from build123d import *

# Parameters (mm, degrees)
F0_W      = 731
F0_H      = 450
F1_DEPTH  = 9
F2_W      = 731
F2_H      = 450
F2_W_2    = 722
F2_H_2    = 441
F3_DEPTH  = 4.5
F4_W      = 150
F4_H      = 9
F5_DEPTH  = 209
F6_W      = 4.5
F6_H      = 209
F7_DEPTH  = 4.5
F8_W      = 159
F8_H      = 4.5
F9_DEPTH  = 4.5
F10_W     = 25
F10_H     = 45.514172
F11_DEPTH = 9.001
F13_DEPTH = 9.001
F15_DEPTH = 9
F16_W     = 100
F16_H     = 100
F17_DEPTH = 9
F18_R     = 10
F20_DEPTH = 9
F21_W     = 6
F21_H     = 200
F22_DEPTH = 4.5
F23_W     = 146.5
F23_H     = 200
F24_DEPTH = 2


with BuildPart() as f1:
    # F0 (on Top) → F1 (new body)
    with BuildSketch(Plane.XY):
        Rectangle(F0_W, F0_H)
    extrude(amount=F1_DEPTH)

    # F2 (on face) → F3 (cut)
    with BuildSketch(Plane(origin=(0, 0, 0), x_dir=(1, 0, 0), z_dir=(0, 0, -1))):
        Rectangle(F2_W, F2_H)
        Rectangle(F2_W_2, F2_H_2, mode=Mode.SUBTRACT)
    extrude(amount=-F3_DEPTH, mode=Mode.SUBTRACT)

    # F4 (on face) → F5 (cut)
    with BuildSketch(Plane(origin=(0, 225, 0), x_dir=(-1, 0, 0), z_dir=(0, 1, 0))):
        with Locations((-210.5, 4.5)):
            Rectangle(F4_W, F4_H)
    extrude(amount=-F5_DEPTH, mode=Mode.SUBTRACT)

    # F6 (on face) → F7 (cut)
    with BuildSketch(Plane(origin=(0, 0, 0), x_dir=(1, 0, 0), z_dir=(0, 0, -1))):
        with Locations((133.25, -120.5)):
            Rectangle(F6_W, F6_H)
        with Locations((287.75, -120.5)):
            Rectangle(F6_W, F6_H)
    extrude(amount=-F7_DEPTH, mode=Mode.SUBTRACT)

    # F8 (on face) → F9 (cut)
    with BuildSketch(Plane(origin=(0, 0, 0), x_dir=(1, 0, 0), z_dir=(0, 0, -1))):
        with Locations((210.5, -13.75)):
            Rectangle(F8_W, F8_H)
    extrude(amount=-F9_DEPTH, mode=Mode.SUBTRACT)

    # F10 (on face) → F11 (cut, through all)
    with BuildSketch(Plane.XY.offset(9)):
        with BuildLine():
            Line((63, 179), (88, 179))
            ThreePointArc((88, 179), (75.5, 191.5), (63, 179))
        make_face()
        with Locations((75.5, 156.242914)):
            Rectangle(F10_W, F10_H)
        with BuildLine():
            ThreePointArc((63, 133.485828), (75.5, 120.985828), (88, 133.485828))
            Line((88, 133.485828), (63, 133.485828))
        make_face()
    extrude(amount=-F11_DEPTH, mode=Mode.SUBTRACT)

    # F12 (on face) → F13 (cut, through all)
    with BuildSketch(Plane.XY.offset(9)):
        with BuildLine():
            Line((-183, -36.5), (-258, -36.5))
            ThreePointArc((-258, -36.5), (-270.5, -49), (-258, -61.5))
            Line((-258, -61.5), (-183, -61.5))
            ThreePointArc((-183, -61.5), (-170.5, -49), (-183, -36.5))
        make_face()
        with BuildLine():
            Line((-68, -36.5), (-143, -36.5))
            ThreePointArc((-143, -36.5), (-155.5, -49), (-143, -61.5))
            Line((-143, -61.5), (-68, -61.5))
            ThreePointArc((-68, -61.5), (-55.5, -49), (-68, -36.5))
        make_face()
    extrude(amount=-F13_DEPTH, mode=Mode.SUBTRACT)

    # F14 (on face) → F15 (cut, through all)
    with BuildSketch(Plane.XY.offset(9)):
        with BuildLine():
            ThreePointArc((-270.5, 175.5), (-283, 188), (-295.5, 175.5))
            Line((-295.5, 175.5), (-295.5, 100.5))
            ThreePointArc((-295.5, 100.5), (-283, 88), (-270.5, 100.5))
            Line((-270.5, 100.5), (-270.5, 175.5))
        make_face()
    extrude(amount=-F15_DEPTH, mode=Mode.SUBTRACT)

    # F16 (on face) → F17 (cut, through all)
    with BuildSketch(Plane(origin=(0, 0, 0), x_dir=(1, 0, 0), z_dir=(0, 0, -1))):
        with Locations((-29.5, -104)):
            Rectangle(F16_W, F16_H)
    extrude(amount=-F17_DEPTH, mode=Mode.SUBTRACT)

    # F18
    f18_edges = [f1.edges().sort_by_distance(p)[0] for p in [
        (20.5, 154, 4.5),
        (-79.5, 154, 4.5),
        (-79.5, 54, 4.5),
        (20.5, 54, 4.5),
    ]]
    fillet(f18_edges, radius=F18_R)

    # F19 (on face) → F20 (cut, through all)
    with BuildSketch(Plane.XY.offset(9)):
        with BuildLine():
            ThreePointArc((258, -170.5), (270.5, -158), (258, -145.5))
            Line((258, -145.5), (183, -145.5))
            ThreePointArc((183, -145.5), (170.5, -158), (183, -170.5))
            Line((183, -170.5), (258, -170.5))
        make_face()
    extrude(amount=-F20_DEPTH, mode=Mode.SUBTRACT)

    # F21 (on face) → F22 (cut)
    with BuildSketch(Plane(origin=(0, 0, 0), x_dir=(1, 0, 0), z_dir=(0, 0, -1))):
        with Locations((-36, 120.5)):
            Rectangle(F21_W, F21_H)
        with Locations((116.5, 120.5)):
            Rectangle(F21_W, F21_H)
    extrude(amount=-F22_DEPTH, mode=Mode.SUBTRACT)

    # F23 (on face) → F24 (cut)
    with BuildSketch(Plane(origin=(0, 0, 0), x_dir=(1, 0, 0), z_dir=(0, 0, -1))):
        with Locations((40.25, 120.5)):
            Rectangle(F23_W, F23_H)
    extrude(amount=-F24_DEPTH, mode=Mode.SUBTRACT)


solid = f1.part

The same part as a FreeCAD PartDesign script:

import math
import FreeCAD as App
import Part
import Sketcher
from FreeCAD import Vector
Q = App.Units.Quantity


def edges_at(feature, points):
    """Names of the edges that pass closest to the given points."""
    edges = feature.Shape.Edges
    near = lambda p: min(range(len(edges)), key=lambda i: edges[i].distToShape(Part.Vertex(*p))[0])
    return sorted({f"Edge{near(p) + 1}" for p in points})

doc = App.newDocument("Part")
body = doc.addObject("PartDesign::Body", "Body")

# Sketch on XY plane
sketch1 = body.newObject("Sketcher::SketchObject", "Sketch")
sketch1.AttachmentSupport = (doc.getObject("XY_Plane"), [""])
sketch1.MapMode = "FlatFace"
sketch1.addGeometry(Part.LineSegment(Vector(-366, 225, 0), Vector(-366, -225, 0)), False)
sketch1.addGeometry(Part.LineSegment(Vector(-366, -225, 0), Vector(366, -225, 0)), False)
sketch1.addGeometry(Part.LineSegment(Vector(366, -225, 0), Vector(366, 225, 0)), False)
sketch1.addGeometry(Part.LineSegment(Vector(366, 225, 0), Vector(-366, 225, 0)), False)
sketch1.addConstraint(Sketcher.Constraint("Coincident", 0, 2, 1, 1))
sketch1.addConstraint(Sketcher.Constraint("Coincident", 1, 2, 2, 1))
sketch1.addConstraint(Sketcher.Constraint("Coincident", 2, 2, 3, 1))
sketch1.addConstraint(Sketcher.Constraint("Coincident", 3, 2, 0, 1))
sketch1.addConstraint(Sketcher.Constraint("Vertical", 0))
sketch1.addConstraint(Sketcher.Constraint("Horizontal", 1))
sketch1.addConstraint(Sketcher.Constraint("Vertical", 2))
sketch1.addConstraint(Sketcher.Constraint("Horizontal", 3))
sketch1.addConstraint(Sketcher.Constraint("Symmetric", 0, 2, 2, 2, -1, 1))
sketch1.addConstraint(Sketcher.Constraint("DistanceX", 1, 1, 1, 2, Q("731 mm")))
sketch1.addConstraint(Sketcher.Constraint("DistanceY", 0, 2, 0, 1, Q("450 mm")))
pad1 = body.newObject("PartDesign::Pad", "Pad")
pad1.Profile = sketch1
pad1.Length = 9

# Sketch on XY plane
sketch2 = body.newObject("Sketcher::SketchObject", "Sketch001")
sketch2.AttachmentSupport = (doc.getObject("XY_Plane"), [""])
sketch2.MapMode = "FlatFace"
sketch2.addGeometry(Part.LineSegment(Vector(-366, -225, 0), Vector(-366, 225, 0)), False)
sketch2.addGeometry(Part.LineSegment(Vector(-366, 225, 0), Vector(366, 225, 0)), False)
sketch2.addGeometry(Part.LineSegment(Vector(366, 225, 0), Vector(366, -225, 0)), False)
sketch2.addGeometry(Part.LineSegment(Vector(366, -225, 0), Vector(-366, -225, 0)), False)
sketch2.addGeometry(Part.LineSegment(Vector(361, 220, 0), Vector(-361, 220, 0)), False)
sketch2.addGeometry(Part.LineSegment(Vector(-361, 220, 0), Vector(-361, -220, 0)), False)
sketch2.addGeometry(Part.LineSegment(Vector(-361, -220, 0), Vector(361, -220, 0)), False)
sketch2.addGeometry(Part.LineSegment(Vector(361, -220, 0), Vector(361, 220, 0)), False)
sketch2.addConstraint(Sketcher.Constraint("Coincident", 0, 2, 1, 1))
sketch2.addConstraint(Sketcher.Constraint("Coincident", 1, 2, 2, 1))
sketch2.addConstraint(Sketcher.Constraint("Coincident", 2, 2, 3, 1))
sketch2.addConstraint(Sketcher.Constraint("Coincident", 3, 2, 0, 1))
sketch2.addConstraint(Sketcher.Constraint("Coincident", 4, 2, 5, 1))
sketch2.addConstraint(Sketcher.Constraint("Coincident", 5, 2, 6, 1))
sketch2.addConstraint(Sketcher.Constraint("Coincident", 6, 2, 7, 1))
sketch2.addConstraint(Sketcher.Constraint("Coincident", 7, 2, 4, 1))
sketch2.addConstraint(Sketcher.Constraint("Vertical", 0))
sketch2.addConstraint(Sketcher.Constraint("Horizontal", 1))
sketch2.addConstraint(Sketcher.Constraint("Vertical", 2))
sketch2.addConstraint(Sketcher.Constraint("Horizontal", 3))
sketch2.addConstraint(Sketcher.Constraint("Horizontal", 4))
sketch2.addConstraint(Sketcher.Constraint("Vertical", 5))
sketch2.addConstraint(Sketcher.Constraint("Horizontal", 6))
sketch2.addConstraint(Sketcher.Constraint("Vertical", 7))
sketch2.addConstraint(Sketcher.Constraint("Symmetric", 0, 2, 2, 2, -1, 1))
sketch2.addConstraint(Sketcher.Constraint("Symmetric", 4, 2, 6, 2, -1, 1))
sketch2.addConstraint(Sketcher.Constraint("DistanceX", 1, 1, 1, 2, Q("731 mm")))
sketch2.addConstraint(Sketcher.Constraint("DistanceX", 4, 2, 4, 1, Q("722 mm")))
sketch2.addConstraint(Sketcher.Constraint("DistanceY", 0, 1, 0, 2, Q("450 mm")))
sketch2.addConstraint(Sketcher.Constraint("DistanceY", 5, 2, 5, 1, Q("441 mm")))
pocket1 = body.newObject("PartDesign::Pocket", "Pocket")
pocket1.Profile = sketch2
pocket1.Length = 4.5
pocket1.Reversed = True

# Sketch on XZ plane
sketch3 = body.newObject("Sketcher::SketchObject", "Sketch002")
sketch3.AttachmentSupport = (doc.getObject("XZ_Plane"), [""])
sketch3.MapMode = "FlatFace"
sketch3.AttachmentOffset = App.Placement(Vector(0, 0, -225), App.Rotation())
sketch3.addGeometry(Part.LineSegment(Vector(286, 9, 0), Vector(286, 0, 0)), False)
sketch3.addGeometry(Part.LineSegment(Vector(286, 0, 0), Vector(136, 0, 0)), False)
sketch3.addGeometry(Part.LineSegment(Vector(136, 0, 0), Vector(136, 9, 0)), False)
sketch3.addGeometry(Part.LineSegment(Vector(136, 9, 0), Vector(286, 9, 0)), False)
sketch3.addConstraint(Sketcher.Constraint("Coincident", 0, 2, 1, 1))
sketch3.addConstraint(Sketcher.Constraint("Coincident", 1, 2, 2, 1))
sketch3.addConstraint(Sketcher.Constraint("Coincident", 2, 2, 3, 1))
sketch3.addConstraint(Sketcher.Constraint("Coincident", 3, 2, 0, 1))
sketch3.addConstraint(Sketcher.Constraint("Vertical", 0))
sketch3.addConstraint(Sketcher.Constraint("Horizontal", 1))
sketch3.addConstraint(Sketcher.Constraint("Vertical", 2))
sketch3.addConstraint(Sketcher.Constraint("Horizontal", 3))
sketch3.addConstraint(Sketcher.Constraint("PointOnObject", 0, 2, -1))
sketch3.addConstraint(Sketcher.Constraint("DistanceX", 1, 2, 1, 1, Q("150 mm")))
sketch3.addConstraint(Sketcher.Constraint("DistanceY", 0, 2, 0, 1, Q("9 mm")))
sketch3.addConstraint(Sketcher.Constraint("DistanceX", -1, 1, 0, 2, Q("285.5 mm")))
pocket2 = body.newObject("PartDesign::Pocket", "Pocket001")
pocket2.Profile = sketch3
pocket2.Length = 209
pocket2.Reversed = True

# Sketch on XY plane
sketch4 = body.newObject("Sketcher::SketchObject", "Sketch003")
sketch4.AttachmentSupport = (doc.getObject("XY_Plane"), [""])
sketch4.MapMode = "FlatFace"
sketch4.addGeometry(Part.LineSegment(Vector(131, 16, 0), Vector(131, 225, 0)), False)
sketch4.addGeometry(Part.LineSegment(Vector(131, 225, 0), Vector(135.5, 225, 0)), False)
sketch4.addGeometry(Part.LineSegment(Vector(135.5, 225, 0), Vector(135.5, 16, 0)), False)
sketch4.addGeometry(Part.LineSegment(Vector(135.5, 16, 0), Vector(131, 16, 0)), False)
sketch4.addGeometry(Part.LineSegment(Vector(285.5, 16, 0), Vector(285.5, 225, 0)), False)
sketch4.addGeometry(Part.LineSegment(Vector(285.5, 225, 0), Vector(290, 225, 0)), False)
sketch4.addGeometry(Part.LineSegment(Vector(290, 225, 0), Vector(290, 16, 0)), False)
sketch4.addGeometry(Part.LineSegment(Vector(290, 16, 0), Vector(285.5, 16, 0)), False)
sketch4.addConstraint(Sketcher.Constraint("Coincident", 0, 2, 1, 1))
sketch4.addConstraint(Sketcher.Constraint("Coincident", 1, 2, 2, 1))
sketch4.addConstraint(Sketcher.Constraint("Coincident", 2, 2, 3, 1))
sketch4.addConstraint(Sketcher.Constraint("Coincident", 3, 2, 0, 1))
sketch4.addConstraint(Sketcher.Constraint("Coincident", 4, 2, 5, 1))
sketch4.addConstraint(Sketcher.Constraint("Coincident", 5, 2, 6, 1))
sketch4.addConstraint(Sketcher.Constraint("Coincident", 6, 2, 7, 1))
sketch4.addConstraint(Sketcher.Constraint("Coincident", 7, 2, 4, 1))
sketch4.addConstraint(Sketcher.Constraint("Vertical", 0))
sketch4.addConstraint(Sketcher.Constraint("Horizontal", 1))
sketch4.addConstraint(Sketcher.Constraint("Vertical", 2))
sketch4.addConstraint(Sketcher.Constraint("Horizontal", 3))
sketch4.addConstraint(Sketcher.Constraint("Vertical", 4))
sketch4.addConstraint(Sketcher.Constraint("Horizontal", 5))
sketch4.addConstraint(Sketcher.Constraint("Vertical", 6))
sketch4.addConstraint(Sketcher.Constraint("Horizontal", 7))
sketch4.addConstraint(Sketcher.Constraint("Horizontal", 1, 2, 4, 2))
sketch4.addConstraint(Sketcher.Constraint("Horizontal", 3, 2, 6, 2))
sketch4.addConstraint(Sketcher.Constraint("Equal", 3, 5))
sketch4.addConstraint(Sketcher.Constraint("DistanceY", 0, 1, 0, 2, Q("209 mm")))
sketch4.addConstraint(Sketcher.Constraint("DistanceX", 1, 1, 1, 2, Q("4.5 mm")))
sketch4.addConstraint(Sketcher.Constraint("DistanceX", -1, 1, 0, 2, Q("131 mm")))
sketch4.addConstraint(Sketcher.Constraint("DistanceY", -1, 1, 0, 2, Q("225 mm")))
sketch4.addConstraint(Sketcher.Constraint("DistanceX", -1, 1, 5, 2, Q("290 mm")))
pocket3 = body.newObject("PartDesign::Pocket", "Pocket002")
pocket3.Profile = sketch4
pocket3.Length = 4.5
pocket3.Reversed = True

# Sketch on XY plane
sketch5 = body.newObject("Sketcher::SketchObject", "Sketch004")
sketch5.AttachmentSupport = (doc.getObject("XY_Plane"), [""])
sketch5.MapMode = "FlatFace"
sketch5.addGeometry(Part.LineSegment(Vector(131, 11.5, 0), Vector(131, 16, 0)), False)
sketch5.addGeometry(Part.LineSegment(Vector(131, 16, 0), Vector(290, 16, 0)), False)
sketch5.addGeometry(Part.LineSegment(Vector(290, 16, 0), Vector(290, 11.5, 0)), False)
sketch5.addGeometry(Part.LineSegment(Vector(290, 11.5, 0), Vector(131, 11.5, 0)), False)
sketch5.addConstraint(Sketcher.Constraint("Coincident", 0, 2, 1, 1))
sketch5.addConstraint(Sketcher.Constraint("Coincident", 1, 2, 2, 1))
sketch5.addConstraint(Sketcher.Constraint("Coincident", 2, 2, 3, 1))
sketch5.addConstraint(Sketcher.Constraint("Coincident", 3, 2, 0, 1))
sketch5.addConstraint(Sketcher.Constraint("Vertical", 0))
sketch5.addConstraint(Sketcher.Constraint("Horizontal", 1))
sketch5.addConstraint(Sketcher.Constraint("Vertical", 2))
sketch5.addConstraint(Sketcher.Constraint("Horizontal", 3))
sketch5.addConstraint(Sketcher.Constraint("DistanceX", 1, 1, 1, 2, Q("159 mm")))
sketch5.addConstraint(Sketcher.Constraint("DistanceY", 0, 1, 0, 2, Q("4.5 mm")))
sketch5.addConstraint(Sketcher.Constraint("DistanceX", -1, 1, 0, 2, Q("131 mm")))
sketch5.addConstraint(Sketcher.Constraint("DistanceY", -1, 1, 0, 2, Q("16 mm")))
pocket4 = body.newObject("PartDesign::Pocket", "Pocket003")
pocket4.Profile = sketch5
pocket4.Length = 4.5
pocket4.Reversed = True

# Sketch on XY plane
sketch6 = body.newObject("Sketcher::SketchObject", "Sketch005")
sketch6.AttachmentSupport = (doc.getObject("XY_Plane"), [""])
sketch6.MapMode = "FlatFace"
sketch6.AttachmentOffset = App.Placement(Vector(0, 0, 9), App.Rotation())
sketch6.addGeometry(Part.ArcOfCircle(Part.Circle(Vector(76, 179, 0), Vector(0, 0, 1), 12), math.radians(0), math.radians(180)), False)
sketch6.addGeometry(Part.LineSegment(Vector(63, 179, 0), Vector(63, 133, 0)), False)
sketch6.addGeometry(Part.ArcOfCircle(Part.Circle(Vector(76, 133, 0), Vector(0, 0, 1), 12), math.radians(180), math.radians(360)), False)
sketch6.addGeometry(Part.LineSegment(Vector(88, 133, 0), Vector(88, 179, 0)), False)
sketch6.addConstraint(Sketcher.Constraint("Tangent", 0, 2, 1, 1))
sketch6.addConstraint(Sketcher.Constraint("Tangent", 1, 2, 2, 1))
sketch6.addConstraint(Sketcher.Constraint("Tangent", 2, 2, 3, 1))
sketch6.addConstraint(Sketcher.Constraint("Tangent", 3, 2, 0, 1))
sketch6.addConstraint(Sketcher.Constraint("Vertical", 1))
sketch6.addConstraint(Sketcher.Constraint("Vertical", 3))
sketch6.addConstraint(Sketcher.Constraint("Radius", 0, Q("12.5 mm")))
sketch6.addConstraint(Sketcher.Constraint("DistanceY", -1, 1, 0, 3, Q("179 mm")))
sketch6.addConstraint(Sketcher.Constraint("DistanceX", -1, 1, 0, 2, Q("63 mm")))
sketch6.addConstraint(Sketcher.Constraint("DistanceY", 1, 2, 1, 1, Q("45.514172 mm")))
pocket5 = body.newObject("PartDesign::Pocket", "Pocket004")
pocket5.Profile = sketch6
pocket5.Type = "ThroughAll"

# Sketch on XY plane
sketch7 = body.newObject("Sketcher::SketchObject", "Sketch006")
sketch7.AttachmentSupport = (doc.getObject("XY_Plane"), [""])
sketch7.MapMode = "FlatFace"
sketch7.AttachmentOffset = App.Placement(Vector(0, 0, 9), App.Rotation())
sketch7.addGeometry(Part.LineSegment(Vector(-183, -36, 0), Vector(-258, -36, 0)), False)
sketch7.addGeometry(Part.ArcOfCircle(Part.Circle(Vector(-258, -49, 0), Vector(0, 0, 1), 12), math.radians(90), math.radians(270)), False)
sketch7.addGeometry(Part.LineSegment(Vector(-258, -62, 0), Vector(-183, -62, 0)), False)
sketch7.addGeometry(Part.ArcOfCircle(Part.Circle(Vector(-183, -49, 0), Vector(0, 0, 1), 12), math.radians(-90), math.radians(90)), False)
sketch7.addGeometry(Part.LineSegment(Vector(-68, -36, 0), Vector(-143, -36, 0)), False)
sketch7.addGeometry(Part.ArcOfCircle(Part.Circle(Vector(-143, -49, 0), Vector(0, 0, 1), 12), math.radians(90), math.radians(270)), False)
sketch7.addGeometry(Part.LineSegment(Vector(-143, -62, 0), Vector(-68, -62, 0)), False)
sketch7.addGeometry(Part.ArcOfCircle(Part.Circle(Vector(-68, -49, 0), Vector(0, 0, 1), 12), math.radians(-90), math.radians(90)), False)
sketch7.addConstraint(Sketcher.Constraint("Tangent", 0, 2, 1, 1))
sketch7.addConstraint(Sketcher.Constraint("Tangent", 1, 2, 2, 1))
sketch7.addConstraint(Sketcher.Constraint("Tangent", 2, 2, 3, 1))
sketch7.addConstraint(Sketcher.Constraint("Tangent", 3, 2, 0, 1))
sketch7.addConstraint(Sketcher.Constraint("Tangent", 4, 2, 5, 1))
sketch7.addConstraint(Sketcher.Constraint("Tangent", 5, 2, 6, 1))
sketch7.addConstraint(Sketcher.Constraint("Tangent", 6, 2, 7, 1))
sketch7.addConstraint(Sketcher.Constraint("Tangent", 7, 2, 4, 1))
sketch7.addConstraint(Sketcher.Constraint("Horizontal", 0))
sketch7.addConstraint(Sketcher.Constraint("Horizontal", 2))
sketch7.addConstraint(Sketcher.Constraint("Horizontal", 4))
sketch7.addConstraint(Sketcher.Constraint("Horizontal", 6))
sketch7.addConstraint(Sketcher.Constraint("Equal", 3, 5))
sketch7.addConstraint(Sketcher.Constraint("Horizontal", 3, 3, 5, 3))
sketch7.addConstraint(Sketcher.Constraint("Equal", 2, 4))
sketch7.addConstraint(Sketcher.Constraint("Radius", 1, Q("12.5 mm")))
sketch7.addConstraint(Sketcher.Constraint("DistanceX", 0, 2, 0, 1, Q("75 mm")))
sketch7.addConstraint(Sketcher.Constraint("DistanceX", 1, 3, -1, 1, Q("258 mm")))
sketch7.addConstraint(Sketcher.Constraint("DistanceY", 1, 3, -1, 1, Q("49 mm")))
sketch7.addConstraint(Sketcher.Constraint("DistanceX", 5, 3, -1, 1, Q("143 mm")))
pocket6 = body.newObject("PartDesign::Pocket", "Pocket005")
pocket6.Profile = sketch7
pocket6.Type = "ThroughAll"

# Sketch on XY plane
sketch8 = body.newObject("Sketcher::SketchObject", "Sketch007")
sketch8.AttachmentSupport = (doc.getObject("XY_Plane"), [""])
sketch8.MapMode = "FlatFace"
sketch8.AttachmentOffset = App.Placement(Vector(0, 0, 9), App.Rotation())
sketch8.addGeometry(Part.ArcOfCircle(Part.Circle(Vector(-283, 176, 0), Vector(0, 0, 1), 12), math.radians(0), math.radians(180)), False)
sketch8.addGeometry(Part.LineSegment(Vector(-296, 176, 0), Vector(-296, 100, 0)), False)
sketch8.addGeometry(Part.ArcOfCircle(Part.Circle(Vector(-283, 100, 0), Vector(0, 0, 1), 12), math.radians(180), math.radians(360)), False)
sketch8.addGeometry(Part.LineSegment(Vector(-270, 100, 0), Vector(-270, 176, 0)), False)
sketch8.addConstraint(Sketcher.Constraint("Tangent", 0, 2, 1, 1))
sketch8.addConstraint(Sketcher.Constraint("Tangent", 1, 2, 2, 1))
sketch8.addConstraint(Sketcher.Constraint("Tangent", 2, 2, 3, 1))
sketch8.addConstraint(Sketcher.Constraint("Tangent", 3, 2, 0, 1))
sketch8.addConstraint(Sketcher.Constraint("Vertical", 1))
sketch8.addConstraint(Sketcher.Constraint("Vertical", 3))
sketch8.addConstraint(Sketcher.Constraint("Radius", 0, Q("12.5 mm")))
sketch8.addConstraint(Sketcher.Constraint("DistanceY", 1, 2, 1, 1, Q("75 mm")))
sketch8.addConstraint(Sketcher.Constraint("DistanceX", 0, 3, -1, 1, Q("283 mm")))
sketch8.addConstraint(Sketcher.Constraint("DistanceY", -1, 1, 0, 3, Q("175.5 mm")))
pocket7 = body.newObject("PartDesign::Pocket", "Pocket006")
pocket7.Profile = sketch8
pocket7.Type = "ThroughAll"

# Sketch on XY plane
sketch9 = body.newObject("Sketcher::SketchObject", "Sketch008")
sketch9.AttachmentSupport = (doc.getObject("XY_Plane"), [""])
sketch9.MapMode = "FlatFace"
sketch9.addGeometry(Part.LineSegment(Vector(-80, 54, 0), Vector(-80, 154, 0)), False)
sketch9.addGeometry(Part.LineSegment(Vector(-80, 154, 0), Vector(20, 154, 0)), False)
sketch9.addGeometry(Part.LineSegment(Vector(20, 154, 0), Vector(20, 54, 0)), False)
sketch9.addGeometry(Part.LineSegment(Vector(20, 54, 0), Vector(-80, 54, 0)), False)
sketch9.addConstraint(Sketcher.Constraint("Coincident", 0, 2, 1, 1))
sketch9.addConstraint(Sketcher.Constraint("Coincident", 1, 2, 2, 1))
sketch9.addConstraint(Sketcher.Constraint("Coincident", 2, 2, 3, 1))
sketch9.addConstraint(Sketcher.Constraint("Coincident", 3, 2, 0, 1))
sketch9.addConstraint(Sketcher.Constraint("Vertical", 0))
sketch9.addConstraint(Sketcher.Constraint("Horizontal", 1))
sketch9.addConstraint(Sketcher.Constraint("Vertical", 2))
sketch9.addConstraint(Sketcher.Constraint("Horizontal", 3))
sketch9.addConstraint(Sketcher.Constraint("Equal", 3, 0))
sketch9.addConstraint(Sketcher.Constraint("DistanceX", 1, 1, 1, 2, Q("100 mm")))
sketch9.addConstraint(Sketcher.Constraint("DistanceY", -1, 1, 0, 2, Q("154 mm")))
sketch9.addConstraint(Sketcher.Constraint("DistanceX", 0, 2, -1, 1, Q("79.5 mm")))
pocket8 = body.newObject("PartDesign::Pocket", "Pocket007")
pocket8.Profile = sketch9
pocket8.Type = "ThroughAll"
pocket8.Reversed = True
doc.recompute()

fillet = body.newObject("PartDesign::Fillet", "Fillet")
fillet.Base = (pocket8, edges_at(pocket8, [
    (20.5, 154, 4.5),
    (-79.5, 154, 4.5),
    (-79.5, 54, 4.5),
    (20.5, 54, 4.5),
]))
fillet.Radius = 10

# Sketch on XY plane
sketch10 = body.newObject("Sketcher::SketchObject", "Sketch009")
sketch10.AttachmentSupport = (doc.getObject("XY_Plane"), [""])
sketch10.MapMode = "FlatFace"
sketch10.AttachmentOffset = App.Placement(Vector(0, 0, 9), App.Rotation())
sketch10.addGeometry(Part.ArcOfCircle(Part.Circle(Vector(258, -158, 0), Vector(0, 0, 1), 12), math.radians(-90), math.radians(90)), False)
sketch10.addGeometry(Part.LineSegment(Vector(258, -146, 0), Vector(183, -146, 0)), False)
sketch10.addGeometry(Part.ArcOfCircle(Part.Circle(Vector(183, -158, 0), Vector(0, 0, 1), 12), math.radians(90), math.radians(270)), False)
sketch10.addGeometry(Part.LineSegment(Vector(183, -170, 0), Vector(258, -170, 0)), False)
sketch10.addConstraint(Sketcher.Constraint("Tangent", 0, 2, 1, 1))
sketch10.addConstraint(Sketcher.Constraint("Tangent", 1, 2, 2, 1))
sketch10.addConstraint(Sketcher.Constraint("Tangent", 2, 2, 3, 1))
sketch10.addConstraint(Sketcher.Constraint("Tangent", 3, 2, 0, 1))
sketch10.addConstraint(Sketcher.Constraint("Horizontal", 1))
sketch10.addConstraint(Sketcher.Constraint("Horizontal", 3))
sketch10.addConstraint(Sketcher.Constraint("Radius", 0, Q("12.5 mm")))
sketch10.addConstraint(Sketcher.Constraint("DistanceX", 1, 2, 1, 1, Q("75 mm")))
sketch10.addConstraint(Sketcher.Constraint("DistanceX", -1, 1, 0, 3, Q("258 mm")))
sketch10.addConstraint(Sketcher.Constraint("DistanceY", 0, 3, -1, 1, Q("158 mm")))
pocket9 = body.newObject("PartDesign::Pocket", "Pocket008")
pocket9.Profile = sketch10
pocket9.Type = "ThroughAll"

# Sketch on XY plane
sketch11 = body.newObject("Sketcher::SketchObject", "Sketch010")
sketch11.AttachmentSupport = (doc.getObject("XY_Plane"), [""])
sketch11.MapMode = "FlatFace"
sketch11.addGeometry(Part.LineSegment(Vector(-39, -220, 0), Vector(-39, -20, 0)), False)
sketch11.addGeometry(Part.LineSegment(Vector(-39, -20, 0), Vector(-33, -20, 0)), False)
sketch11.addGeometry(Part.LineSegment(Vector(-33, -20, 0), Vector(-33, -220, 0)), False)
sketch11.addGeometry(Part.LineSegment(Vector(-33, -220, 0), Vector(-39, -220, 0)), False)
sketch11.addGeometry(Part.LineSegment(Vector(114, -220, 0), Vector(114, -20, 0)), False)
sketch11.addGeometry(Part.LineSegment(Vector(114, -20, 0), Vector(120, -20, 0)), False)
sketch11.addGeometry(Part.LineSegment(Vector(120, -20, 0), Vector(120, -220, 0)), False)
sketch11.addGeometry(Part.LineSegment(Vector(120, -220, 0), Vector(114, -220, 0)), False)
sketch11.addConstraint(Sketcher.Constraint("Coincident", 0, 2, 1, 1))
sketch11.addConstraint(Sketcher.Constraint("Coincident", 1, 2, 2, 1))
sketch11.addConstraint(Sketcher.Constraint("Coincident", 2, 2, 3, 1))
sketch11.addConstraint(Sketcher.Constraint("Coincident", 3, 2, 0, 1))
sketch11.addConstraint(Sketcher.Constraint("Coincident", 4, 2, 5, 1))
sketch11.addConstraint(Sketcher.Constraint("Coincident", 5, 2, 6, 1))
sketch11.addConstraint(Sketcher.Constraint("Coincident", 6, 2, 7, 1))
sketch11.addConstraint(Sketcher.Constraint("Coincident", 7, 2, 4, 1))
sketch11.addConstraint(Sketcher.Constraint("Vertical", 0))
sketch11.addConstraint(Sketcher.Constraint("Horizontal", 1))
sketch11.addConstraint(Sketcher.Constraint("Vertical", 2))
sketch11.addConstraint(Sketcher.Constraint("Horizontal", 3))
sketch11.addConstraint(Sketcher.Constraint("Vertical", 4))
sketch11.addConstraint(Sketcher.Constraint("Horizontal", 5))
sketch11.addConstraint(Sketcher.Constraint("Vertical", 6))
sketch11.addConstraint(Sketcher.Constraint("Horizontal", 7))
sketch11.addConstraint(Sketcher.Constraint("Horizontal", 1, 2, 4, 2))
sketch11.addConstraint(Sketcher.Constraint("Horizontal", 3, 2, 6, 2))
sketch11.addConstraint(Sketcher.Constraint("Equal", 3, 5))
sketch11.addConstraint(Sketcher.Constraint("DistanceX", 1, 1, 1, 2, Q("6 mm")))
sketch11.addConstraint(Sketcher.Constraint("DistanceY", 0, 1, 0, 2, Q("200 mm")))
sketch11.addConstraint(Sketcher.Constraint("DistanceX", 0, 2, -1, 1, Q("39 mm")))
sketch11.addConstraint(Sketcher.Constraint("DistanceY", 0, 2, -1, 1, Q("20.5 mm")))
sketch11.addConstraint(Sketcher.Constraint("DistanceX", -1, 1, 4, 2, Q("113.5 mm")))
pocket10 = body.newObject("PartDesign::Pocket", "Pocket009")
pocket10.Profile = sketch11
pocket10.Length = 4.5
pocket10.Reversed = True

# Sketch on XY plane
sketch12 = body.newObject("Sketcher::SketchObject", "Sketch011")
sketch12.AttachmentSupport = (doc.getObject("XY_Plane"), [""])
sketch12.MapMode = "FlatFace"
sketch12.addGeometry(Part.LineSegment(Vector(-33, -220, 0), Vector(-33, -20, 0)), False)
sketch12.addGeometry(Part.LineSegment(Vector(-33, -20, 0), Vector(114, -20, 0)), False)
sketch12.addGeometry(Part.LineSegment(Vector(114, -20, 0), Vector(114, -220, 0)), False)
sketch12.addGeometry(Part.LineSegment(Vector(114, -220, 0), Vector(-33, -220, 0)), False)
sketch12.addConstraint(Sketcher.Constraint("Coincident", 0, 2, 1, 1))
sketch12.addConstraint(Sketcher.Constraint("Coincident", 1, 2, 2, 1))
sketch12.addConstraint(Sketcher.Constraint("Coincident", 2, 2, 3, 1))
sketch12.addConstraint(Sketcher.Constraint("Coincident", 3, 2, 0, 1))
sketch12.addConstraint(Sketcher.Constraint("Vertical", 0))
sketch12.addConstraint(Sketcher.Constraint("Horizontal", 1))
sketch12.addConstraint(Sketcher.Constraint("Vertical", 2))
sketch12.addConstraint(Sketcher.Constraint("Horizontal", 3))
sketch12.addConstraint(Sketcher.Constraint("DistanceY", 0, 1, 0, 2, Q("200 mm")))
sketch12.addConstraint(Sketcher.Constraint("DistanceX", 1, 1, 1, 2, Q("146.5 mm")))
sketch12.addConstraint(Sketcher.Constraint("DistanceX", 0, 2, -1, 1, Q("33 mm")))
sketch12.addConstraint(Sketcher.Constraint("DistanceY", 0, 2, -1, 1, Q("20.5 mm")))
pocket11 = body.newObject("PartDesign::Pocket", "Pocket010")
pocket11.Profile = sketch12
pocket11.Length = 2
pocket11.Reversed = True

doc.recompute()
